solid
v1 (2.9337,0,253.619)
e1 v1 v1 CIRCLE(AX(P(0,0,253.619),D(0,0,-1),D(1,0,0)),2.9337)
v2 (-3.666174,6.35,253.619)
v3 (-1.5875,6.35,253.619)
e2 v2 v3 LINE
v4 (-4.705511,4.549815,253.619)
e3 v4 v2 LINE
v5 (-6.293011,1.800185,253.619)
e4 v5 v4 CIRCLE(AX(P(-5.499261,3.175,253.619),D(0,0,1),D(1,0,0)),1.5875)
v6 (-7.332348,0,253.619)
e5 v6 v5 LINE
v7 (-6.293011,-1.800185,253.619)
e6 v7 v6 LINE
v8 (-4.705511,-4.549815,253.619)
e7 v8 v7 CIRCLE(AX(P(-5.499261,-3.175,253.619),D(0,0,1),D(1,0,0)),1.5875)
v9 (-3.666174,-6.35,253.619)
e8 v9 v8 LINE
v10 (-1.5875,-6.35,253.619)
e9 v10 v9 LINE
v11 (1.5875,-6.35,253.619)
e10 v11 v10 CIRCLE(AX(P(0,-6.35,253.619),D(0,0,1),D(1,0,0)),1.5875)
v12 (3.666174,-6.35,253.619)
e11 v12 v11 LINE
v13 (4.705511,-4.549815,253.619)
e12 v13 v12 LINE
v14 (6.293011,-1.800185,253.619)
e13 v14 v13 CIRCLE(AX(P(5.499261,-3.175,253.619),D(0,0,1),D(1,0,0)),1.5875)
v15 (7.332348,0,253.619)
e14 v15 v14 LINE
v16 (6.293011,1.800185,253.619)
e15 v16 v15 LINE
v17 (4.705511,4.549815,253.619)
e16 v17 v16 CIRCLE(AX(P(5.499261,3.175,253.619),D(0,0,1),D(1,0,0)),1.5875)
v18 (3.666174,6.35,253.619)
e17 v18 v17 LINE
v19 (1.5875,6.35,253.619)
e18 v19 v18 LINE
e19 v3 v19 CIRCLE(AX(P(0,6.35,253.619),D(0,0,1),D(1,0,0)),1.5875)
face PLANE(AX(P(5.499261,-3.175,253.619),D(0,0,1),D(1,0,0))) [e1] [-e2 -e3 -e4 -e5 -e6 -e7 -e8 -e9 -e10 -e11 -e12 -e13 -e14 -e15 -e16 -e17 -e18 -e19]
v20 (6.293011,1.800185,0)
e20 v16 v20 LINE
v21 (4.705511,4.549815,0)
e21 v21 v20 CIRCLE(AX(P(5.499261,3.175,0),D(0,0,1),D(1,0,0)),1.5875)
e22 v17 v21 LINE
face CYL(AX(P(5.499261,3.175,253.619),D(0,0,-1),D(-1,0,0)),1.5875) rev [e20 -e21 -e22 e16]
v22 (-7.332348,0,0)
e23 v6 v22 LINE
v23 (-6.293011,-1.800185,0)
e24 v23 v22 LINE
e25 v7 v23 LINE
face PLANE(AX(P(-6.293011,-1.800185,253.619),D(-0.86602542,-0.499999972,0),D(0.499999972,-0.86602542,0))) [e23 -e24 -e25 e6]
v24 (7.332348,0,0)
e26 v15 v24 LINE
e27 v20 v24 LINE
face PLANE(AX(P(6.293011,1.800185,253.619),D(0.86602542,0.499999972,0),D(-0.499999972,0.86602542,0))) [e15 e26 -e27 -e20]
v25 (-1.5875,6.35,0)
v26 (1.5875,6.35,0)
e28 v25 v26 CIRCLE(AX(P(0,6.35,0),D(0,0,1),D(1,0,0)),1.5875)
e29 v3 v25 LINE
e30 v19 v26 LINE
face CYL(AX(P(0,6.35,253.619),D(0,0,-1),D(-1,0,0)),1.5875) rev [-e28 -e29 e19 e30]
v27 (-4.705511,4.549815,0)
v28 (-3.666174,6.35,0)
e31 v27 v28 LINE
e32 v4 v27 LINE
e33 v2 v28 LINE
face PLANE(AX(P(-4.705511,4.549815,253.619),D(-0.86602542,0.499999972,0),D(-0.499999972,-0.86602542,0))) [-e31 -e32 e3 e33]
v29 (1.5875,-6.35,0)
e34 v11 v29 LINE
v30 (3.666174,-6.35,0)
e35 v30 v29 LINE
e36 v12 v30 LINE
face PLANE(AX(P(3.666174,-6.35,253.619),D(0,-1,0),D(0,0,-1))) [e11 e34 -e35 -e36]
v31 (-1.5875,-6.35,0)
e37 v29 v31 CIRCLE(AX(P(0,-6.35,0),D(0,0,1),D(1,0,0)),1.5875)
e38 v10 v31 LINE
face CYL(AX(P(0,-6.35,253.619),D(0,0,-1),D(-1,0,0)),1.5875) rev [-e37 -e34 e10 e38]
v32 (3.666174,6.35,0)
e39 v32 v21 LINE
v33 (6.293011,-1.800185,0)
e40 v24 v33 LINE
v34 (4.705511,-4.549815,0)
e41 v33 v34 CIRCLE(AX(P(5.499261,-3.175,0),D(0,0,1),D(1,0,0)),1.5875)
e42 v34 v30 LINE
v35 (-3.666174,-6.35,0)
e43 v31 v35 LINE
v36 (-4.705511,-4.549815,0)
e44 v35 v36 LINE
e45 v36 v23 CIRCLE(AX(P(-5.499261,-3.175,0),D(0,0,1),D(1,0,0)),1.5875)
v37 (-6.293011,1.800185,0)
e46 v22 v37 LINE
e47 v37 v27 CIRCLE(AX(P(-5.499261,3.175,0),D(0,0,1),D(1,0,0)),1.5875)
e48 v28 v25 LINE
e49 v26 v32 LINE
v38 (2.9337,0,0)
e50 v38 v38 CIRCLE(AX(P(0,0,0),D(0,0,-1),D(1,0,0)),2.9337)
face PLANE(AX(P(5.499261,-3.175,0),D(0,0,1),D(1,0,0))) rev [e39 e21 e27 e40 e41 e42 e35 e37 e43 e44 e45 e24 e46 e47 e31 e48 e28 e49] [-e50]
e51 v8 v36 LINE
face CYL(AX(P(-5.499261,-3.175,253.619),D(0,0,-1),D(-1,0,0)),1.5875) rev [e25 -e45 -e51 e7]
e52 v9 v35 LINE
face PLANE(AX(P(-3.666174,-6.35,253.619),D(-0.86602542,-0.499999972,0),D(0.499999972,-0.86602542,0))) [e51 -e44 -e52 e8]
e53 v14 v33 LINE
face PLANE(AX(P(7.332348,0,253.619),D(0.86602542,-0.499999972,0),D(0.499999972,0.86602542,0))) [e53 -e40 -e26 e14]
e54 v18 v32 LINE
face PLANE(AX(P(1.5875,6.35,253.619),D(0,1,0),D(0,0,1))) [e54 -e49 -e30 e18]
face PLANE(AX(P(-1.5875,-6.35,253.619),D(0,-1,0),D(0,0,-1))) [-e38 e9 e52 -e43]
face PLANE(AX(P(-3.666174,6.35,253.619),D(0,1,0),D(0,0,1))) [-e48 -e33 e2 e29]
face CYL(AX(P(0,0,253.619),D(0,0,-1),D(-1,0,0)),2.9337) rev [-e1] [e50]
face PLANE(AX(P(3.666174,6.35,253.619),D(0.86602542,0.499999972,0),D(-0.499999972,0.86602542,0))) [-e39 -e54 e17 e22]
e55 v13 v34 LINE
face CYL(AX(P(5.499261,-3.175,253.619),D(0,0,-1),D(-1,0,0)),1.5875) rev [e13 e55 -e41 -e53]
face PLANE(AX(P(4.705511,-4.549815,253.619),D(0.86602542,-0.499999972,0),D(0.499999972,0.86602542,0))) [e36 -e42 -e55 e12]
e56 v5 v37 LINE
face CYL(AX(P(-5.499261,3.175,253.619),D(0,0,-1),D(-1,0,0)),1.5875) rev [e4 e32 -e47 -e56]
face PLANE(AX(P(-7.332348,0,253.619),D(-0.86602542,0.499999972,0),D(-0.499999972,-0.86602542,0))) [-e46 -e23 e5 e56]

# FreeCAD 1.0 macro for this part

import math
import FreeCAD as App
import Part
import Sketcher

V = App.Vector
Q = App.Units.Quantity

doc = App.newDocument("Part")
body = doc.addObject("PartDesign::Body", "Body")

# Sketch on XY plane
sketch1 = body.newObject("Sketcher::SketchObject", "Sketch")
sketch1.AttachmentSupport = (doc.getObject("XY_Plane"), [""])
sketch1.MapMode = "FlatFace"
sketch1.addGeometry([
    Part.LineSegment(V(4.7, -4.5, 0), V(3.7, -6.4, 0)),  # 0
    Part.LineSegment(V(3.7, -6.4, 0), V(1.6, -6.4, 0)),  # 1
    Part.ArcOfCircle(Part.Circle(V(0, -6.4, 0), V(0, 0, 1), 1.6), math.radians(0), math.radians(180)),  # 2
    Part.LineSegment(V(-1.6, -6.4, 0), V(-3.7, -6.4, 0)),  # 3
    Part.LineSegment(V(-3.7, -6.4, 0), V(-4.7, -4.5, 0)),  # 4
    Part.ArcOfCircle(Part.Circle(V(-5.5, -3.2, 0), V(0, 0, 1), 1.6), math.radians(-60), math.radians(120)),  # 5
    Part.LineSegment(V(-6.3, -1.8, 0), V(-7.3, 0, 0)),  # 6
    Part.LineSegment(V(-7.3, 0, 0), V(-6.3, 1.8, 0)),  # 7
    Part.ArcOfCircle(Part.Circle(V(-5.5, 3.2, 0), V(0, 0, 1), 1.6), math.radians(-120), math.radians(60)),  # 8
    Part.LineSegment(V(-4.7, 4.5, 0), V(-3.7, 6.4, 0)),  # 9
    Part.LineSegment(V(-3.7, 6.4, 0), V(-1.6, 6.4, 0)),  # 10
    Part.ArcOfCircle(Part.Circle(V(0, 6.4, 0), V(0, 0, 1), 1.6), math.radians(180), math.radians(360)),  # 11
    Part.LineSegment(V(1.6, 6.4, 0), V(3.7, 6.4, 0)),  # 12
    Part.LineSegment(V(3.7, 6.4, 0), V(4.7, 4.5, 0)),  # 13
    Part.ArcOfCircle(Part.Circle(V(5.5, 3.2, 0), V(0, 0, 1), 1.6), math.radians(120), math.radians(300)),  # 14
    Part.LineSegment(V(6.3, 1.8, 0), V(7.3, 0, 0)),  # 15
    Part.LineSegment(V(7.3, 0, 0), V(6.3, -1.8, 0)),  # 16
    Part.ArcOfCircle(Part.Circle(V(5.5, -3.2, 0), V(0, 0, 1), 1.6), math.radians(60), math.radians(240)),  # 17
    Part.Circle(V(0, 0, 0), V(0, 0, 1), 2.9),  # 18
], False)
sketch1.addConstraint([
    Sketcher.Constraint("Coincident", 0, 2, 1, 1),
    Sketcher.Constraint("Coincident", 1, 2, 2, 1),
    Sketcher.Constraint("Coincident", 2, 2, 3, 1),
    Sketcher.Constraint("Coincident", 3, 2, 4, 1),
    Sketcher.Constraint("Coincident", 4, 2, 5, 1),
    Sketcher.Constraint("Coincident", 5, 2, 6, 1),
    Sketcher.Constraint("Coincident", 6, 2, 7, 1),
    Sketcher.Constraint("Coincident", 7, 2, 8, 1),
    Sketcher.Constraint("Coincident", 8, 2, 9, 1),
    Sketcher.Constraint("Coincident", 9, 2, 10, 1),
    Sketcher.Constraint("Coincident", 10, 2, 11, 1),
    Sketcher.Constraint("Coincident", 11, 2, 12, 1),
    Sketcher.Constraint("Coincident", 12, 2, 13, 1),
    Sketcher.Constraint("Coincident", 13, 2, 14, 1),
    Sketcher.Constraint("Coincident", 14, 2, 15, 1),
    Sketcher.Constraint("Coincident", 15, 2, 16, 1),
    Sketcher.Constraint("Coincident", 16, 2, 17, 1),
    Sketcher.Constraint("Coincident", 17, 2, 0, 1),
    Sketcher.Constraint("Horizontal", 1),
    Sketcher.Constraint("Horizontal", 3),
    Sketcher.Constraint("Horizontal", 10),
    Sketcher.Constraint("Horizontal", 12),
    Sketcher.Constraint("Coincident", 18, 3, -1, 1),
    Sketcher.Constraint("Equal", 2, 5),
    Sketcher.Constraint("Equal", 5, 8),
    Sketcher.Constraint("Equal", 8, 11),
    Sketcher.Constraint("Equal", 11, 14),
    Sketcher.Constraint("Equal", 14, 17),
    Sketcher.Constraint("Symmetric", 2, 3, 11, 3, -1, 1),
    Sketcher.Constraint("Symmetric", 5, 3, 14, 3, -1, 1),
    Sketcher.Constraint("Symmetric", 8, 3, 17, 3, -1, 1),
    Sketcher.Constraint("Symmetric", 0, 2, 9, 2, -1, 1),
    Sketcher.Constraint("Symmetric", 3, 2, 12, 2, -1, 1),
    Sketcher.Constraint("Symmetric", 6, 2, 15, 2, -1, 1),
    Sketcher.Constraint("Symmetric", 8, 3, 14, 3, -2),
    Sketcher.Constraint("Symmetric", 1, 2, 2, 2, -2),
    Sketcher.Constraint("PointOnObject", 6, 2, -1),
    Sketcher.Constraint("Parallel", 4, 6),
    Sketcher.Constraint("Parallel", 0, 7),
    Sketcher.Constraint("Parallel", 7, 9),
    Sketcher.Constraint("Parallel", 6, 13),
    Sketcher.Constraint("Parallel", 13, 15),
    Sketcher.Constraint("Parallel", 9, 16),
    Sketcher.Constraint("Horizontal", 2, 3, 0, 2),
    Sketcher.Constraint("Horizontal", 8, 2, 13, 2),
    Sketcher.Constraint("Horizontal", 7, 2, 14, 2),
    Sketcher.Constraint("Equal", 4, 6),
    Sketcher.Constraint("Diameter", 18, Q("0.231 in")),
    Sketcher.Constraint("Angle", 0, Q("-119.999998 deg")),
    Sketcher.Constraint("Radius", 2, Q("0.0625 in")),
    Sketcher.Constraint("DistanceY", 2, 3, 11, 3, Q("0.5 in")),
    Sketcher.Constraint("DistanceY", 5, 3, 8, 3, Q("0.25 in")),
    Sketcher.Constraint("DistanceX", 5, 3, 4, 2, Q("0.03125 in")),
    Sketcher.Constraint("DistanceX", 1, 2, 1, 1, 2.078674),
])
pad1 = body.newObject("PartDesign::Pad", "Pad")
pad1.Profile = sketch1
pad1.Length = Q("9.985 in")

doc.recompute()
